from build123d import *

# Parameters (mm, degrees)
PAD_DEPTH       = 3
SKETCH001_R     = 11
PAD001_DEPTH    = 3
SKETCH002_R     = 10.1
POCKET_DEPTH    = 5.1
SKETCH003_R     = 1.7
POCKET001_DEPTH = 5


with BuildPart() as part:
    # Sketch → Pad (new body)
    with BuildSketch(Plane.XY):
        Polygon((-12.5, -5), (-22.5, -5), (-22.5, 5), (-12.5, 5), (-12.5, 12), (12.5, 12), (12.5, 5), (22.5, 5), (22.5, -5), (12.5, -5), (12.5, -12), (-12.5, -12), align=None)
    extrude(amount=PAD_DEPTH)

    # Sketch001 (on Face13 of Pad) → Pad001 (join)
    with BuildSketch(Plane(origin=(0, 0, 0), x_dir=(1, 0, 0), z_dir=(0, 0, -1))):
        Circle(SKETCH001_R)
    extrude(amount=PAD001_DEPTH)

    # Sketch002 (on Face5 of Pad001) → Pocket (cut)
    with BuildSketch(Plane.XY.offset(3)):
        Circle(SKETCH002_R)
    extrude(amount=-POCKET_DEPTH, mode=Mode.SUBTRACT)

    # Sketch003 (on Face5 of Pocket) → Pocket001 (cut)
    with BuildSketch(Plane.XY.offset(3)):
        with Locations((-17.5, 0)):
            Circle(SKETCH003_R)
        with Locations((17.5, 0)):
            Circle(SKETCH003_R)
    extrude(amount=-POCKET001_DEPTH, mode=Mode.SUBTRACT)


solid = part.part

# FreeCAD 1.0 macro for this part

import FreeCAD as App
import Part
import Sketcher

V = App.Vector
Q = App.Units.Quantity

doc = App.newDocument("Part")
body = doc.addObject("PartDesign::Body", "Body")

sketch1 = body.newObject("Sketcher::SketchObject", "Sketch")
sketch1.AttachmentSupport = (doc.getObject("XY_Plane"), [""])
sketch1.MapMode = "FlatFace"
sketch1.addGeometry(Part.LineSegment(V(-22.5, -5, 0), V(-12.5, -5, 0)), False)
sketch1.addGeometry(Part.LineSegment(V(-12.5, -5, 0), V(-12.5, -12, 0)), False)
sketch1.addGeometry(Part.LineSegment(V(-12.5, -12, 0), V(12.5, -12, 0)), False)
sketch1.addGeometry(Part.LineSegment(V(12.5, -12, 0), V(12.5, -5, 0)), False)
sketch1.addGeometry(Part.LineSegment(V(12.5, -5, 0), V(22.5, -5, 0)), False)
sketch1.addGeometry(Part.LineSegment(V(22.5, -5, 0), V(22.5, 5, 0)), False)
sketch1.addGeometry(Part.LineSegment(V(22.5, 5, 0), V(12.5, 5, 0)), False)
sketch1.addGeometry(Part.LineSegment(V(12.5, 5, 0), V(12.5, 12, 0)), False)
sketch1.addGeometry(Part.LineSegment(V(12.5, 12, 0), V(-12.5, 12, 0)), False)
sketch1.addGeometry(Part.LineSegment(V(-12.5, 12, 0), V(-12.5, 5, 0)), False)
sketch1.addGeometry(Part.LineSegment(V(-12.5, 5, 0), V(-22.5, 5, 0)), False)
sketch1.addGeometry(Part.LineSegment(V(-22.5, 5, 0), V(-22.5, -5, 0)), False)
sketch1.addConstraint(Sketcher.Constraint("Coincident", 0, 2, 1, 1))
sketch1.addConstraint(Sketcher.Constraint("Coincident", 1, 2, 2, 1))
sketch1.addConstraint(Sketcher.Constraint("Coincident", 2, 2, 3, 1))
sketch1.addConstraint(Sketcher.Constraint("Coincident", 3, 2, 4, 1))
sketch1.addConstraint(Sketcher.Constraint("Coincident", 4, 2, 5, 1))
sketch1.addConstraint(Sketcher.Constraint("Coincident", 5, 2, 6, 1))
sketch1.addConstraint(Sketcher.Constraint("Coincident", 6, 2, 7, 1))
sketch1.addConstraint(Sketcher.Constraint("Coincident", 7, 2, 8, 1))
sketch1.addConstraint(Sketcher.Constraint("Coincident", 8, 2, 9, 1))
sketch1.addConstraint(Sketcher.Constraint("Coincident", 9, 2, 10, 1))
sketch1.addConstraint(Sketcher.Constraint("Coincident", 10, 2, 11, 1))
sketch1.addConstraint(Sketcher.Constraint("Coincident", 11, 2, 0, 1))
sketch1.addConstraint(Sketcher.Constraint("Horizontal", 0))
sketch1.addConstraint(Sketcher.Constraint("Vertical", 1))
sketch1.addConstraint(Sketcher.Constraint("Horizontal", 2))
sketch1.addConstraint(Sketcher.Constraint("Vertical", 3))
sketch1.addConstraint(Sketcher.Constraint("Horizontal", 4))
sketch1.addConstraint(Sketcher.Constraint("Vertical", 5))
sketch1.addConstraint(Sketcher.Constraint("Horizontal", 6))
sketch1.addConstraint(Sketcher.Constraint("Vertical", 7))
sketch1.addConstraint(Sketcher.Constraint("Horizontal", 8))
sketch1.addConstraint(Sketcher.Constraint("Vertical", 9))
sketch1.addConstraint(Sketcher.Constraint("Horizontal", 10))
sketch1.addConstraint(Sketcher.Constraint("Vertical", 11))
sketch1.addConstraint(Sketcher.Constraint("Symmetric", 0, 2, 6, 2, -1, 1))
sketch1.addConstraint(Sketcher.Constraint("Symmetric", 2, 2, 8, 2, -1, 1))
sketch1.addConstraint(Sketcher.Constraint("Symmetric", 4, 2, 10, 2, -1, 1))
sketch1.addConstraint(Sketcher.Constraint("Symmetric", 0, 2, 3, 2, -2))
sketch1.addConstraint(Sketcher.Constraint("Equal", 10, 5))
sketch1.addConstraint(Sketcher.Constraint("DistanceX", 0, 1, 0, 2, Q("10 mm")))
sketch1.addConstraint(Sketcher.Constraint("DistanceX", 2, 1, 2, 2, Q("25 mm")))
sketch1.addConstraint(Sketcher.Constraint("DistanceY", 1, 2, 1, 1, Q("7 mm")))
pad1 = body.newObject("PartDesign::Pad", "Pad")
pad1.Profile = sketch1
pad1.Length = 3

sketch2 = body.newObject("Sketcher::SketchObject", "Sketch001")
sketch2.AttachmentSupport = (doc.getObject("XY_Plane"), [""])
sketch2.MapMode = "FlatFace"
sketch2.addGeometry(Part.Circle(V(0, 0, 0), V(0, 0, 1), 11), False)
sketch2.addConstraint(Sketcher.Constraint("Coincident", 0, 3, -1, 1))
sketch2.addConstraint(Sketcher.Constraint("Diameter", 0, Q("22 mm")))
pad2 = body.newObject("PartDesign::Pad", "Pad001")
pad2.Profile = sketch2
pad2.Length = 3
pad2.Reversed = True

sketch3 = body.newObject("Sketcher::SketchObject", "Sketch002")
sketch3.AttachmentSupport = (doc.getObject("XY_Plane"), [""])
sketch3.MapMode = "FlatFace"
sketch3.AttachmentOffset = App.Placement(V(0, 0, 3), App.Rotation())
sketch3.addGeometry(Part.Circle(V(0, 0, 0), V(0, 0, 1), 10.1), False)
sketch3.addConstraint(Sketcher.Constraint("Coincident", 0, 3, -1, 1))
sketch3.addConstraint(Sketcher.Constraint("Diameter", 0, Q("20.2 mm")))
pocket1 = body.newObject("PartDesign::Pocket", "Pocket")
pocket1.Profile = sketch3
pocket1.Length = 5.1

sketch4 = body.newObject("Sketcher::SketchObject", "Sketch003")
sketch4.AttachmentSupport = (doc.getObject("XY_Plane"), [""])
sketch4.MapMode = "FlatFace"
sketch4.AttachmentOffset = App.Placement(V(0, 0, 3), App.Rotation())
sketch4.addGeometry(Part.Circle(V(-17.5, 0, 0), V(0, 0, 1), 1.7), False)
sketch4.addGeometry(Part.Circle(V(17.5, 0, 0), V(0, 0, 1), 1.7), False)
sketch4.addConstraint(Sketcher.Constraint("Equal", 0, 1))
sketch4.addConstraint(Sketcher.Constraint("Symmetric", 0, 3, 1, 3, -1, 1))
sketch4.addConstraint(Sketcher.Constraint("PointOnObject", 0, 3, -1))
sketch4.addConstraint(Sketcher.Constraint("Diameter", 0, Q("3.4 mm")))
sketch4.addConstraint(Sketcher.Constraint("DistanceX", 0, 3, 1, 3, Q("35 mm")))
pocket2 = body.newObject("PartDesign::Pocket", "Pocket001")
pocket2.Profile = sketch4
pocket2.Length = 5

doc.recompute()
